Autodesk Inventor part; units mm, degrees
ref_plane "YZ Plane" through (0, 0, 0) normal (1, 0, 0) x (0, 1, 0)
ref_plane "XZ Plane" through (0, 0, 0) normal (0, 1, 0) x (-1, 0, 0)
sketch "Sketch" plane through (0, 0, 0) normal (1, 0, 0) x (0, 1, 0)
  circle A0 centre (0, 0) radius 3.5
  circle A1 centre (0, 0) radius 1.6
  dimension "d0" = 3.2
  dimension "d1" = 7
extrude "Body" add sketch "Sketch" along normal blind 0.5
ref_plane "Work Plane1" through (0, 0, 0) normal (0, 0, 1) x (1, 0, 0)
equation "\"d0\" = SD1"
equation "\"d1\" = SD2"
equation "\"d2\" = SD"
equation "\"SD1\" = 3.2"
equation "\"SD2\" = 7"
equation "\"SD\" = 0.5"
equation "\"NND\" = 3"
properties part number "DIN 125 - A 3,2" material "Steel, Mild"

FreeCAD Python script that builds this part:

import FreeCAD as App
import Part
import Sketcher

doc = App.newDocument("Part")
body = doc.addObject("PartDesign::Body", "Body")

# Sketch on YZ plane
sketch1 = doc.addObject("Sketcher::SketchObject", "Sketch")
body.addObject(sketch1)
sketch1.AttachmentSupport = (doc.YZ_Plane, [""])
sketch1.MapMode = "FlatFace"
sketch1.addGeometry(Part.Circle(App.Vector(0, 0, 0), App.Vector(0, 0, 1), 3.5), False)
sketch1.addGeometry(Part.Circle(App.Vector(0, 0, 0), App.Vector(0, 0, 1), 1.6), False)
sketch1.addConstraint(Sketcher.Constraint("Coincident", 0, 3, -1, 1))
sketch1.addConstraint(Sketcher.Constraint("Coincident", 1, 3, -1, 1))
sketch1.addConstraint(Sketcher.Constraint("Diameter", 0, 7.0))
sketch1.addConstraint(Sketcher.Constraint("Diameter", 1, 3.2))
pad1 = doc.addObject("PartDesign::Pad", "Pad")
body.addObject(pad1)
pad1.Profile = sketch1
pad1.Length = 0.5

doc.recompute()
